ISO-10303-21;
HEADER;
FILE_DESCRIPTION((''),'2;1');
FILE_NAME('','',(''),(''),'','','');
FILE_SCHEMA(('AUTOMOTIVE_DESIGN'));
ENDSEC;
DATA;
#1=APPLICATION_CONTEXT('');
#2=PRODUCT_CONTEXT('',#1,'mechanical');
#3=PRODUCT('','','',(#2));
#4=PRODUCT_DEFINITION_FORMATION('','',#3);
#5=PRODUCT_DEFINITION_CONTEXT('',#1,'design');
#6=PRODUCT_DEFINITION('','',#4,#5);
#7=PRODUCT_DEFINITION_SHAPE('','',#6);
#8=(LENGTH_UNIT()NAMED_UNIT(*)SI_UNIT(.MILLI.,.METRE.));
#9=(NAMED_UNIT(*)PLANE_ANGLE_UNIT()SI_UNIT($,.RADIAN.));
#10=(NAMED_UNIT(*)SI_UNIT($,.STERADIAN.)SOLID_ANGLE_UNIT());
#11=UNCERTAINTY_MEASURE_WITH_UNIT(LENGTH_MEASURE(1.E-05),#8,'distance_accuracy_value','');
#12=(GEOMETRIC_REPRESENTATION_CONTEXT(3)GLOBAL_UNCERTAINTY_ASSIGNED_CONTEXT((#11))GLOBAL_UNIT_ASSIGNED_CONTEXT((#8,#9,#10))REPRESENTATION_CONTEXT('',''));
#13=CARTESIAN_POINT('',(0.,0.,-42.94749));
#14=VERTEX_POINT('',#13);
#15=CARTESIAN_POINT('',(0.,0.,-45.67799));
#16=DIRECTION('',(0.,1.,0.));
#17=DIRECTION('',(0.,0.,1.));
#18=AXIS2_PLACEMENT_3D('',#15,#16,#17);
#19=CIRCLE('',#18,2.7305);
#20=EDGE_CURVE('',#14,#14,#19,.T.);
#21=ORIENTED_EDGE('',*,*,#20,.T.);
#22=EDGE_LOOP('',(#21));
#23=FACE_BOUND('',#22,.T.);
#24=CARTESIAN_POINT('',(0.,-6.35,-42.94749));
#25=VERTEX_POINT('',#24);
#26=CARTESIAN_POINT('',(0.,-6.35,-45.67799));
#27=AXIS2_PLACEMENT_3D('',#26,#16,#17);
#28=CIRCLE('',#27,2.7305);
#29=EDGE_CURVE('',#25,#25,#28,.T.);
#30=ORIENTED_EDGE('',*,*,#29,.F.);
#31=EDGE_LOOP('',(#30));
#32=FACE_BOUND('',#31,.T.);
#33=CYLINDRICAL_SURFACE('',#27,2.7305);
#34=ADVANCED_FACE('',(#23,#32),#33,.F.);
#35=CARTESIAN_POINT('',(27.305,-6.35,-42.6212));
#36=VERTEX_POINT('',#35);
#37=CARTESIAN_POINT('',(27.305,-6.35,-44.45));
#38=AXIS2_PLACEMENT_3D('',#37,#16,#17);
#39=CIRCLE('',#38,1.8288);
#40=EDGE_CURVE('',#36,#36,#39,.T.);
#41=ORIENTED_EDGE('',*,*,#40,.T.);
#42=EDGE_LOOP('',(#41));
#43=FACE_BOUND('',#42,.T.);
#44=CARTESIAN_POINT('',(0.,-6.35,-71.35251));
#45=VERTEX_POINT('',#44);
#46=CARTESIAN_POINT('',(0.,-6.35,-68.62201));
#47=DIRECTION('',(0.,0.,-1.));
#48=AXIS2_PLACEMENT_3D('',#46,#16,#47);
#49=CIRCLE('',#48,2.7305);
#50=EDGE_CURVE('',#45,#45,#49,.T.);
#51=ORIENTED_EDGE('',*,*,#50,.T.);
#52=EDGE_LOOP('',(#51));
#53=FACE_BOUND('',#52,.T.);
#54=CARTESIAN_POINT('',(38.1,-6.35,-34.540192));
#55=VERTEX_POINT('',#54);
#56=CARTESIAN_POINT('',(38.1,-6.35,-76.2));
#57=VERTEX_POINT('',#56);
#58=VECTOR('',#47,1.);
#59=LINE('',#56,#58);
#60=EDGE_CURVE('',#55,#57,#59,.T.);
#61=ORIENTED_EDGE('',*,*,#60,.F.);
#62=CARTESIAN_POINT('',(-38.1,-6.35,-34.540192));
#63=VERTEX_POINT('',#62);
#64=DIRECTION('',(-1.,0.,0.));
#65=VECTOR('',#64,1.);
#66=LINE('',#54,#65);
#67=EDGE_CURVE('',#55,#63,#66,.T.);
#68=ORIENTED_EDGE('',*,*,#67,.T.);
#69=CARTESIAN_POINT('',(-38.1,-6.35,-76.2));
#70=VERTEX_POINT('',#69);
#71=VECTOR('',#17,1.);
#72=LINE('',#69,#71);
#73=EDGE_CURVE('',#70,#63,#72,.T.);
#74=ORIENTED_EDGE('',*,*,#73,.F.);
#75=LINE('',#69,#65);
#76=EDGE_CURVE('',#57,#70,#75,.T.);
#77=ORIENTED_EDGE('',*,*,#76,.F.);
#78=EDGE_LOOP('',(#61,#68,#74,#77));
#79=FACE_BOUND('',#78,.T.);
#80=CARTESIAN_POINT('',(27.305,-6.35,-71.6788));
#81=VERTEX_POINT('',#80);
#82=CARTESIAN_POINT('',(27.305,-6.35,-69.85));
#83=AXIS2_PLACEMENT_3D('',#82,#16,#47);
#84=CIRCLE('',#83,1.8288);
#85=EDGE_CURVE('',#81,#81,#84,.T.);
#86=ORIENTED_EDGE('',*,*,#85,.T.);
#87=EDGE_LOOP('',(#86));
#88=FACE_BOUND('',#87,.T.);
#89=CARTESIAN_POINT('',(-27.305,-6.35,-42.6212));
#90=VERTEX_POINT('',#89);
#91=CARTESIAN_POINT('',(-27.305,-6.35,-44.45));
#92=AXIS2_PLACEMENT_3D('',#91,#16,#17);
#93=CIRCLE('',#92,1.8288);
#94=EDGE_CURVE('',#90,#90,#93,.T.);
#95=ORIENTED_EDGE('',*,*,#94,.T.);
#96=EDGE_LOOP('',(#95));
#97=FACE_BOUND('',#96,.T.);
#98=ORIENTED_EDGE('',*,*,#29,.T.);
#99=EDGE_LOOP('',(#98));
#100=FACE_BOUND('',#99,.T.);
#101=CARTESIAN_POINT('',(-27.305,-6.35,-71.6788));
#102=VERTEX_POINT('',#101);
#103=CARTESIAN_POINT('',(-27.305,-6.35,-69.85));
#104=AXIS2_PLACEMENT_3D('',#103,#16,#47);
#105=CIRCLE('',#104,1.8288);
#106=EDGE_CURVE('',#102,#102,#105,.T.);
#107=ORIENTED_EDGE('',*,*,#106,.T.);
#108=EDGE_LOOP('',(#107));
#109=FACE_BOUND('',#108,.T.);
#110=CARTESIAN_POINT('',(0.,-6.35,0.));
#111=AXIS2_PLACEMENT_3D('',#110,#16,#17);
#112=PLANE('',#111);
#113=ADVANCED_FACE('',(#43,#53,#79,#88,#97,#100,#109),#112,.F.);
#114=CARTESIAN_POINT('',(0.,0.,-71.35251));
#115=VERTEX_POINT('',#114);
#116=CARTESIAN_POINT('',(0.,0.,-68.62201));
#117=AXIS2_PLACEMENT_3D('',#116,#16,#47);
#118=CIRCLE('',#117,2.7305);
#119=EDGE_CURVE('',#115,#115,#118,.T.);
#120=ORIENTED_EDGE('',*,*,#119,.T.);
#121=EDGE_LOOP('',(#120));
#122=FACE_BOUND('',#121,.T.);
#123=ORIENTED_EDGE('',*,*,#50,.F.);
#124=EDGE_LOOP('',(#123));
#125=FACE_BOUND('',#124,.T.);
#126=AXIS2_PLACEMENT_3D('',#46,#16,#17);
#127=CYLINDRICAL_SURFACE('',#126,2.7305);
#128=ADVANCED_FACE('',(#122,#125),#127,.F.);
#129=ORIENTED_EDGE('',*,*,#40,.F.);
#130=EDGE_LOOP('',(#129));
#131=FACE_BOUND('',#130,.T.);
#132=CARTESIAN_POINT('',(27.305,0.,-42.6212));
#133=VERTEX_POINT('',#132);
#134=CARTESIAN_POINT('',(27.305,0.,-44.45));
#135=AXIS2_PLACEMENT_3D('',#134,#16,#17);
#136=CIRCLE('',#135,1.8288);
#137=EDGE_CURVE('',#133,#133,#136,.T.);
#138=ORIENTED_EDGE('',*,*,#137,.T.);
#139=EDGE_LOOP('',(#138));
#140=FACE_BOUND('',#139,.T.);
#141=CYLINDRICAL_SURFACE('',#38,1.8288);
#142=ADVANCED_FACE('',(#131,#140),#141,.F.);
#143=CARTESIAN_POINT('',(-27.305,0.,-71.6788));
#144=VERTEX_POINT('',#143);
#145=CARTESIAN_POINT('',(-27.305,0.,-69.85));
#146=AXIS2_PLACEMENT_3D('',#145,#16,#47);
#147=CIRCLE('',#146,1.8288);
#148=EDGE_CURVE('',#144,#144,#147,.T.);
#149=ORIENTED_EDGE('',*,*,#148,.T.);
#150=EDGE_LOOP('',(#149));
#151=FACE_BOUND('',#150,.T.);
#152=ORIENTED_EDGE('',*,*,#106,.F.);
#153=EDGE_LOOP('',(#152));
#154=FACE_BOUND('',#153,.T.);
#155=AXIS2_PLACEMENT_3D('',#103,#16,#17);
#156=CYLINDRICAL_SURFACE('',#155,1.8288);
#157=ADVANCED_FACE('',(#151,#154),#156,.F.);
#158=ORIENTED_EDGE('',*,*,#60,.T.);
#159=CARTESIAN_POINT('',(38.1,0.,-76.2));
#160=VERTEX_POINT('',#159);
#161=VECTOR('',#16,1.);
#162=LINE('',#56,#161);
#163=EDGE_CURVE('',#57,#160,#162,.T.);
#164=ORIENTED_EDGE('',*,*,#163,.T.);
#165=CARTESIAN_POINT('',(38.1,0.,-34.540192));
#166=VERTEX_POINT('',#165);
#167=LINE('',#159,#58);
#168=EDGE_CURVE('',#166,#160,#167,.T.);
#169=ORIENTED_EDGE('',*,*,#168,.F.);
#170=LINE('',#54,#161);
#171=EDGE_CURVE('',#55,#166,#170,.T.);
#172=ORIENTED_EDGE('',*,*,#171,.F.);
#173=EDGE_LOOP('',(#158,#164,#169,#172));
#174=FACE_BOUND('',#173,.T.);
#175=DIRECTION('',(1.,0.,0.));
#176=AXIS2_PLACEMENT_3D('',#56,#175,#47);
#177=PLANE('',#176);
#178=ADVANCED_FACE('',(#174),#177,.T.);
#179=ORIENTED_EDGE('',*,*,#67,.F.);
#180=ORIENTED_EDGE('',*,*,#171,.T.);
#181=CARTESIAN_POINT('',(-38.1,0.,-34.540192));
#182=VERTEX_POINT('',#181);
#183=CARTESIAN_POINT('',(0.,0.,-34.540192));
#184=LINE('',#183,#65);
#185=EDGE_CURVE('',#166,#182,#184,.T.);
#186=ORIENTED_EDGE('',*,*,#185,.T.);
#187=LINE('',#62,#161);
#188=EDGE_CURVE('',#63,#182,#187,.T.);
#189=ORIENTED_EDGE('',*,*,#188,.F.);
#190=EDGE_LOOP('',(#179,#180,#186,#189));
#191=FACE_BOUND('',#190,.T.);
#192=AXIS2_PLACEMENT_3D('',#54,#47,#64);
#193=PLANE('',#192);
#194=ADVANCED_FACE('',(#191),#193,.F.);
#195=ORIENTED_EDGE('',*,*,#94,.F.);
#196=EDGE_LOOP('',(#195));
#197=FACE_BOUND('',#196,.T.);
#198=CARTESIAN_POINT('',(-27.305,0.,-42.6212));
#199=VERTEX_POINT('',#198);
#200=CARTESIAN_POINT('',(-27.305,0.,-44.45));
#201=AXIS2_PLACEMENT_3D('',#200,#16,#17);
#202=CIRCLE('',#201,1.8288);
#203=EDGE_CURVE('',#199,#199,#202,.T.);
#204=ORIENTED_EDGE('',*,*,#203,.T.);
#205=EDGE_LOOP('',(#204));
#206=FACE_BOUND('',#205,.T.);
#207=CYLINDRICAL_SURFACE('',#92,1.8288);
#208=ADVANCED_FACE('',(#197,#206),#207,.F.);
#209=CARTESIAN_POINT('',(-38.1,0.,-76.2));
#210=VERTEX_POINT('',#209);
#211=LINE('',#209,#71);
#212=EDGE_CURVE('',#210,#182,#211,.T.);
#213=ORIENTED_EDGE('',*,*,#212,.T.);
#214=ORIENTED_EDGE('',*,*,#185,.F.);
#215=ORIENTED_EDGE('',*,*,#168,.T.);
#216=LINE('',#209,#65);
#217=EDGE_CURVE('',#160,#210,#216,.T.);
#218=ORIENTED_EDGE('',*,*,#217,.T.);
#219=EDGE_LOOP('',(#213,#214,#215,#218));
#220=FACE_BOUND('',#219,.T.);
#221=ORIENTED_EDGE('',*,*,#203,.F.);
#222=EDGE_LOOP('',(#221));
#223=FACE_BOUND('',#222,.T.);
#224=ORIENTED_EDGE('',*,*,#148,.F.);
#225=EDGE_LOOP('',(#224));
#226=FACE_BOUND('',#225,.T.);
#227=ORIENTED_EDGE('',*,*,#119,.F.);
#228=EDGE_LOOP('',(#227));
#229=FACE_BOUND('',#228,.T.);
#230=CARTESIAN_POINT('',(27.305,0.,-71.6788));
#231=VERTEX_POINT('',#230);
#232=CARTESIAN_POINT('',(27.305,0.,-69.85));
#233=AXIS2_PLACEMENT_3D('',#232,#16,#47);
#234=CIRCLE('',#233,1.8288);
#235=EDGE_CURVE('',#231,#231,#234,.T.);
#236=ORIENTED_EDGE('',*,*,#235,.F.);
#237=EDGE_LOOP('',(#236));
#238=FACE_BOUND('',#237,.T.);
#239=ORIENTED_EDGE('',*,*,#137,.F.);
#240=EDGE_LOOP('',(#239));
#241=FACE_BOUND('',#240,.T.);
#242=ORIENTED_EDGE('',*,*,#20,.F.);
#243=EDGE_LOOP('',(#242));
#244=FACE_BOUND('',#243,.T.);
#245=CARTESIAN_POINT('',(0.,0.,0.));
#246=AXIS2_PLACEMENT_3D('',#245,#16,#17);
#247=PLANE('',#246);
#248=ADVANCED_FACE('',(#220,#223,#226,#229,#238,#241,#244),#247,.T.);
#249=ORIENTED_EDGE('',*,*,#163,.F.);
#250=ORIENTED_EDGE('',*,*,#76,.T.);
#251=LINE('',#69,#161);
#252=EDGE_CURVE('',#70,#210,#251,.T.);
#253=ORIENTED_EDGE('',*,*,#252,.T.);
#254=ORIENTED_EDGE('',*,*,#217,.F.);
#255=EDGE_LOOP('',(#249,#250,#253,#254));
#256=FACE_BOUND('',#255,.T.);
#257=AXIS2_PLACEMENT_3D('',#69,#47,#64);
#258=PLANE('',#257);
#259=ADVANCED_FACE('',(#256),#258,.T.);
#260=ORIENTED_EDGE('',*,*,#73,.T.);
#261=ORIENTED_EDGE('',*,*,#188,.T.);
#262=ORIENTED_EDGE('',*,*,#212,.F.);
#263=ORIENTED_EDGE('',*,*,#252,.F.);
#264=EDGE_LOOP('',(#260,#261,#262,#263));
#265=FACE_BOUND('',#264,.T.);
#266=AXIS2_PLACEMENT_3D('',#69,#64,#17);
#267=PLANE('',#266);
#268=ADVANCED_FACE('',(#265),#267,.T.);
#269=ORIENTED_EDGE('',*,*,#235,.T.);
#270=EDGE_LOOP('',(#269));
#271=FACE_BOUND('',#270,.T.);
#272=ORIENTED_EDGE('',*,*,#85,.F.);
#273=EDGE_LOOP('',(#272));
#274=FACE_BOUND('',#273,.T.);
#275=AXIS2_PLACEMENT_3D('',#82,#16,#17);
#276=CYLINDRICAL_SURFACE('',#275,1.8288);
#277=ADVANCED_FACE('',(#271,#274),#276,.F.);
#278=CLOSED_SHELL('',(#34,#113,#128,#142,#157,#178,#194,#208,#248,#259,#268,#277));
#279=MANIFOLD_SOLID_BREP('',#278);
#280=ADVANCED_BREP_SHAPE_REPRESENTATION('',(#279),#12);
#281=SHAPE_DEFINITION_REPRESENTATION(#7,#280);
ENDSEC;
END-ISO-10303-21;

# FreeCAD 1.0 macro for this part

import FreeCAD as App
import Part
import Sketcher
from FreeCAD import Vector
Q = App.Units.Quantity


def add_polygon(sketch, points):
    """Adds a closed chain of lines whose ends are joined by coincident constraints."""
    first, n = sketch.GeometryCount, len(points)
    for a, b in zip(points, points[1:] + points[:1]):
        sketch.addGeometry(Part.LineSegment(App.Vector(*a, 0), App.Vector(*b, 0)), False)
    for i in range(n):
        sketch.addConstraint(Sketcher.Constraint("Coincident", first + i, 2, first + (i + 1) % n, 1))

doc = App.newDocument("Part")
body = doc.addObject("PartDesign::Body", "Body")

# Sketch on XZ plane
sketch1 = body.newObject("Sketcher::SketchObject", "Sketch")
sketch1.AttachmentSupport = (doc.getObject("XZ_Plane"), [""])
sketch1.MapMode = "FlatFace"
add_polygon(sketch1, [(-38.1, -76.2), (-38.1, 76.2), (38.1, 76.2), (38.1, -76.2)])  # lines 0-3
sketch1.addGeometry(Part.Circle(Vector(-27.3, 31.8, 0), Vector(0, 0, 1), 1.8), False)  # 4
sketch1.addGeometry(Part.Circle(Vector(0, 57.1, 0), Vector(0, 0, 1), 2.7), False)  # 5
sketch1.addGeometry(Part.Circle(Vector(27.3, 31.8, 0), Vector(0, 0, 1), 1.8), False)  # 6
sketch1.addGeometry(Part.Circle(Vector(0, 19.1, 0), Vector(0, 0, 1), 2.7), False)  # 7
sketch1.addGeometry(Part.Circle(Vector(-27.3, -6.3, 0), Vector(0, 0, 1), 1.8), False)  # 8
sketch1.addGeometry(Part.Circle(Vector(-27.3, -44.5, 0), Vector(0, 0, 1), 1.8), False)  # 9
sketch1.addGeometry(Part.Circle(Vector(-27.3, -69.8, 0), Vector(0, 0, 1), 1.8), False)  # 10
sketch1.addGeometry(Part.Circle(Vector(0, -19.1, 0), Vector(0, 0, 1), 2.7), False)  # 11
sketch1.addGeometry(Part.Circle(Vector(27.3, -6.3, 0), Vector(0, 0, 1), 1.8), False)  # 12
sketch1.addGeometry(Part.Circle(Vector(0, -45.7, 0), Vector(0, 0, 1), 2.7), False)  # 13
sketch1.addGeometry(Part.Circle(Vector(0, -68.6, 0), Vector(0, 0, 1), 2.7), False)  # 14
sketch1.addGeometry(Part.Circle(Vector(27.3, -44.5, 0), Vector(0, 0, 1), 1.8), False)  # 15
sketch1.addGeometry(Part.Circle(Vector(27.3, -69.8, 0), Vector(0, 0, 1), 1.8), False)  # 16
sketch1.addConstraint([
    Sketcher.Constraint("Vertical", 0),
    Sketcher.Constraint("Horizontal", 1),
    Sketcher.Constraint("Vertical", 2),
    Sketcher.Constraint("Horizontal", 3),
    Sketcher.Constraint("Equal", 4, 6),
    Sketcher.Constraint("Equal", 5, 7),
    Sketcher.Constraint("Equal", 6, 8),
    Sketcher.Constraint("Equal", 8, 9),
    Sketcher.Constraint("Equal", 9, 10),
    Sketcher.Constraint("Equal", 7, 11),
    Sketcher.Constraint("Equal", 10, 12),
    Sketcher.Constraint("Equal", 11, 13),
    Sketcher.Constraint("Equal", 13, 14),
    Sketcher.Constraint("Equal", 12, 15),
    Sketcher.Constraint("Equal", 15, 16),
    Sketcher.Constraint("Symmetric", 7, 3, 11, 3, -1, 1),
    Sketcher.Constraint("Symmetric", 0, 2, 2, 2, -1, 1),
    Sketcher.Constraint("Symmetric", 4, 3, 6, 3, -2),
    Sketcher.Constraint("Symmetric", 8, 3, 12, 3, -2),
    Sketcher.Constraint("Symmetric", 9, 3, 15, 3, -2),
    Sketcher.Constraint("Symmetric", 10, 3, 16, 3, -2),
    Sketcher.Constraint("PointOnObject", 5, 3, -2),
    Sketcher.Constraint("PointOnObject", 7, 3, -2),
    Sketcher.Constraint("PointOnObject", 13, 3, -2),
    Sketcher.Constraint("PointOnObject", 14, 3, -2),
    Sketcher.Constraint("Vertical", 4, 3, 8, 3),
    Sketcher.Constraint("Vertical", 8, 3, 9, 3),
    Sketcher.Constraint("Vertical", 9, 3, 10, 3),
    Sketcher.Constraint("DistanceX", 1, 1, 1, 2, Q("3 in")),
    Sketcher.Constraint("DistanceY", 0, 1, 0, 2, Q("6 in")),
    Sketcher.Constraint("Diameter", 4, Q("0.144 in")),
    Sketcher.Constraint("Diameter", 5, Q("0.215 in")),
    Sketcher.Constraint("DistanceY", 4, 3, 5, 3, Q("1 in")),
    Sketcher.Constraint("DistanceY", 8, 3, 7, 3, Q("1 in")),
    Sketcher.Constraint("DistanceY", 9, 3, 4, 3, Q("3 in")),
    Sketcher.Constraint("DistanceY", 10, 3, 9, 3, Q("1 in")),
    Sketcher.Constraint("DistanceY", 9, 3, 11, 3, Q("1 in")),
    Sketcher.Constraint("DistanceY", 7, 3, 4, 3, Q("0.5 in")),
    Sketcher.Constraint("DistanceX", 4, 3, 6, 3, Q("2.15 in")),
    Sketcher.Constraint("DistanceY", 13, 3, -1, 1, Q("45.67799 mm")),
    Sketcher.Constraint("DistanceY", 14, 3, -1, 1, Q("68.62201 mm")),
])
pad1 = body.newObject("PartDesign::Pad", "Pad")
pad1.Profile = sketch1
pad1.Length = Q("0.25 in")

# Sketch on XZ plane
sketch2 = body.newObject("Sketcher::SketchObject", "Sketch001")
sketch2.AttachmentSupport = (doc.getObject("XZ_Plane"), [""])
sketch2.MapMode = "FlatFace"
add_polygon(sketch2, [(-38, -35), (-38, 76), (38, 76), (38, -35)])  # lines 0-3
sketch2.addConstraint([
    Sketcher.Constraint("Vertical", 0),
    Sketcher.Constraint("Horizontal", 1),
    Sketcher.Constraint("Vertical", 2),
    Sketcher.Constraint("Horizontal", 3),
    Sketcher.Constraint("DistanceX", 1, 1, 1, 2, Q("3 in")),
    Sketcher.Constraint("DistanceY", -1, 1, 0, 2, Q("3 in")),
    Sketcher.Constraint("DistanceX", 0, 2, -1, 1, Q("1.5 in")),
    Sketcher.Constraint("DistanceY", 0, 1, 0, 2, Q("110.740192 mm")),
])
pocket1 = body.newObject("PartDesign::Pocket", "Pocket")
pocket1.Profile = sketch2
pocket1.Type = "ThroughAll"
pocket1.Midplane = True

doc.recompute()
